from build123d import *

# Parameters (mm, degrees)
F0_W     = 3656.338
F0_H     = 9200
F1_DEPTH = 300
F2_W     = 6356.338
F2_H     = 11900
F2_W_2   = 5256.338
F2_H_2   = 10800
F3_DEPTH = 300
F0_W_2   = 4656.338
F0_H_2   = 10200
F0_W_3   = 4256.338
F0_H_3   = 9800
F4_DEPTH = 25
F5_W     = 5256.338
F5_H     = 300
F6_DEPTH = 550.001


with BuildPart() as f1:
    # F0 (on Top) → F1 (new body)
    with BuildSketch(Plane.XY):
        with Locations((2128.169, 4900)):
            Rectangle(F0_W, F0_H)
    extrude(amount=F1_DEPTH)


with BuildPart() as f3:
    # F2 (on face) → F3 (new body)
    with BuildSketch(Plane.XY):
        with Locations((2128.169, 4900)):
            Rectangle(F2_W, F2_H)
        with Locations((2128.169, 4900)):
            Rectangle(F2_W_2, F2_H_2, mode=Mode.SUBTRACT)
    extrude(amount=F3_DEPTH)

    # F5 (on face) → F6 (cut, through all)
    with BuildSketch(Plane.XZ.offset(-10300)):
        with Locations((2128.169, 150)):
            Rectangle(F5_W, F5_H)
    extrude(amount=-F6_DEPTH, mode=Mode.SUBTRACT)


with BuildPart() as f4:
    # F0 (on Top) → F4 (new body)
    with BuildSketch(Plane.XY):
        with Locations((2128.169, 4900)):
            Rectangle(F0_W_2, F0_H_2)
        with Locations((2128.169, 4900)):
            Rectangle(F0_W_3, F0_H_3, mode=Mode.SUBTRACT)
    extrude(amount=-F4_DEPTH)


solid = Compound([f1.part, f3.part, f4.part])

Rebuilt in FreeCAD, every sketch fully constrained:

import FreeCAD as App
import Part
import Sketcher

V = App.Vector

doc = App.newDocument("Part")
body = doc.addObject("PartDesign::Body", "Body")

# Sketch on XY plane
sketch1 = body.newObject("Sketcher::SketchObject", "Sketch")
sketch1.AttachmentSupport = (doc.getObject("XY_Plane"), [""])
sketch1.MapMode = "FlatFace"
sketch1.addGeometry([
    Part.LineSegment(V(300, 9500, 0), V(300, 300, 0)),
    Part.LineSegment(V(300, 300, 0), V(3956, 300, 0)),
    Part.LineSegment(V(3956, 300, 0), V(3956, 9500, 0)),
    Part.LineSegment(V(3956, 9500, 0), V(300, 9500, 0)),
], False)
sketch1.addConstraint([
    Sketcher.Constraint("Coincident", 0, 2, 1, 1),
    Sketcher.Constraint("Coincident", 1, 2, 2, 1),
    Sketcher.Constraint("Coincident", 2, 2, 3, 1),
    Sketcher.Constraint("Coincident", 3, 2, 0, 1),
    Sketcher.Constraint("Vertical", 0),
    Sketcher.Constraint("Horizontal", 1),
    Sketcher.Constraint("Vertical", 2),
    Sketcher.Constraint("Horizontal", 3),
    Sketcher.Constraint("DistanceY", 0, 2, 0, 1, 9200.0),
    Sketcher.Constraint("DistanceX", -1, 1, 0, 2, 300.0),
    Sketcher.Constraint("DistanceY", -1, 1, 0, 2, 300.0),
    Sketcher.Constraint("DistanceX", 1, 1, 1, 2, 3656.338),
])
pad1 = body.newObject("PartDesign::Pad", "Pad")
pad1.Profile = sketch1
pad1.Length = 300
body2 = doc.addObject("PartDesign::Body", "Body001")

# Sketch on XY plane
sketch2 = body2.newObject("Sketcher::SketchObject", "Sketch001")
sketch2.AttachmentSupport = (doc.getObject("XY_Plane001"), [""])
sketch2.MapMode = "FlatFace"
sketch2.addGeometry([
    Part.LineSegment(V(-1050, 10850, 0), V(-1050, -1050, 0)),  # 0
    Part.LineSegment(V(-1050, -1050, 0), V(5306, -1050, 0)),  # 1
    Part.LineSegment(V(5306, -1050, 0), V(5306, 10850, 0)),  # 2
    Part.LineSegment(V(5306, 10850, 0), V(-1050, 10850, 0)),  # 3
    Part.LineSegment(V(4756, -500, 0), V(-500, -500, 0)),  # 4
    Part.LineSegment(V(-500, -500, 0), V(-500, 10300, 0)),  # 5
    Part.LineSegment(V(-500, 10300, 0), V(4756, 10300, 0)),  # 6
    Part.LineSegment(V(4756, 10300, 0), V(4756, -500, 0)),  # 7
], False)
sketch2.addConstraint([
    Sketcher.Constraint("Coincident", 0, 2, 1, 1),
    Sketcher.Constraint("Coincident", 1, 2, 2, 1),
    Sketcher.Constraint("Coincident", 2, 2, 3, 1),
    Sketcher.Constraint("Coincident", 3, 2, 0, 1),
    Sketcher.Constraint("Coincident", 4, 2, 5, 1),
    Sketcher.Constraint("Coincident", 5, 2, 6, 1),
    Sketcher.Constraint("Coincident", 6, 2, 7, 1),
    Sketcher.Constraint("Coincident", 7, 2, 4, 1),
    Sketcher.Constraint("Vertical", 0),
    Sketcher.Constraint("Horizontal", 1),
    Sketcher.Constraint("Vertical", 2),
    Sketcher.Constraint("Horizontal", 3),
    Sketcher.Constraint("Horizontal", 4),
    Sketcher.Constraint("Vertical", 5),
    Sketcher.Constraint("Horizontal", 6),
    Sketcher.Constraint("Vertical", 7),
    Sketcher.Constraint("DistanceY", 0, 2, 0, 1, 11900.0),
    Sketcher.Constraint("DistanceY", 5, 1, 5, 2, 10800.0),
    Sketcher.Constraint("DistanceX", 0, 2, -1, 1, 1050.0),
    Sketcher.Constraint("DistanceY", 0, 2, -1, 1, 1050.0),
    Sketcher.Constraint("DistanceX", 4, 2, -1, 1, 500.0),
    Sketcher.Constraint("DistanceY", 4, 2, -1, 1, 500.0),
    Sketcher.Constraint("DistanceX", 6, 2, 2, 2, 550.0),
    Sketcher.Constraint("DistanceX", 1, 1, 1, 2, 6356.338),
])
pad2 = body2.newObject("PartDesign::Pad", "Pad001")
pad2.Profile = sketch2
pad2.Length = 300

# Sketch on XZ plane
sketch3 = body2.newObject("Sketcher::SketchObject", "Sketch002")
sketch3.AttachmentSupport = (doc.getObject("XZ_Plane001"), [""])
sketch3.MapMode = "FlatFace"
sketch3.AttachmentOffset = App.Placement(V(0, 0, -10300), App.Rotation())
sketch3.addGeometry([
    Part.LineSegment(V(-500, 300, 0), V(-500, 0, 0)),
    Part.LineSegment(V(-500, 0, 0), V(4756, 0, 0)),
    Part.LineSegment(V(4756, 0, 0), V(4756, 300, 0)),
    Part.LineSegment(V(4756, 300, 0), V(-500, 300, 0)),
], False)
sketch3.addConstraint([
    Sketcher.Constraint("Coincident", 0, 2, 1, 1),
    Sketcher.Constraint("Coincident", 1, 2, 2, 1),
    Sketcher.Constraint("Coincident", 2, 2, 3, 1),
    Sketcher.Constraint("Coincident", 3, 2, 0, 1),
    Sketcher.Constraint("Vertical", 0),
    Sketcher.Constraint("Horizontal", 1),
    Sketcher.Constraint("Vertical", 2),
    Sketcher.Constraint("Horizontal", 3),
    Sketcher.Constraint("PointOnObject", 0, 2, -1),
    Sketcher.Constraint("DistanceY", 0, 2, 0, 1, 300.0),
    Sketcher.Constraint("DistanceX", 0, 2, -1, 1, 500.0),
    Sketcher.Constraint("DistanceX", 1, 1, 1, 2, 5256.338),
])
pocket1 = body2.newObject("PartDesign::Pocket", "Pocket")
pocket1.Profile = sketch3
pocket1.Type = "ThroughAll"
body3 = doc.addObject("PartDesign::Body", "Body002")

# Sketch on XY plane
sketch4 = body3.newObject("Sketcher::SketchObject", "Sketch003")
sketch4.AttachmentSupport = (doc.getObject("XY_Plane002"), [""])
sketch4.MapMode = "FlatFace"
sketch4.addGeometry([
    Part.LineSegment(V(-200, 10000, 0), V(-200, -200, 0)),  # 0
    Part.LineSegment(V(-200, -200, 0), V(4456, -200, 0)),  # 1
    Part.LineSegment(V(4456, -200, 0), V(4456, 10000, 0)),  # 2
    Part.LineSegment(V(4456, 10000, 0), V(-200, 10000, 0)),  # 3
    Part.LineSegment(V(4256, 0, 0), V(0, 0, 0)),  # 4
    Part.LineSegment(V(0, 0, 0), V(0, 9800, 0)),  # 5
    Part.LineSegment(V(0, 9800, 0), V(4256, 9800, 0)),  # 6
    Part.LineSegment(V(4256, 9800, 0), V(4256, 0, 0)),  # 7
], False)
sketch4.addConstraint([
    Sketcher.Constraint("Coincident", 0, 2, 1, 1),
    Sketcher.Constraint("Coincident", 1, 2, 2, 1),
    Sketcher.Constraint("Coincident", 2, 2, 3, 1),
    Sketcher.Constraint("Coincident", 3, 2, 0, 1),
    Sketcher.Constraint("Coincident", 4, 2, 5, 1),
    Sketcher.Constraint("Coincident", 5, 2, 6, 1),
    Sketcher.Constraint("Coincident", 6, 2, 7, 1),
    Sketcher.Constraint("Coincident", 7, 2, 4, 1),
    Sketcher.Constraint("Vertical", 0),
    Sketcher.Constraint("Horizontal", 1),
    Sketcher.Constraint("Vertical", 2),
    Sketcher.Constraint("Horizontal", 3),
    Sketcher.Constraint("Horizontal", 4),
    Sketcher.Constraint("Vertical", 5),
    Sketcher.Constraint("Horizontal", 6),
    Sketcher.Constraint("Vertical", 7),
    Sketcher.Constraint("Coincident", 4, 2, -1, 1),
    Sketcher.Constraint("DistanceY", 0, 2, 0, 1, 10200.0),
    Sketcher.Constraint("DistanceY", 5, 1, 5, 2, 9800.0),
    Sketcher.Constraint("DistanceX", 0, 2, -1, 1, 200.0),
    Sketcher.Constraint("DistanceY", 0, 2, -1, 1, 200.0),
    Sketcher.Constraint("DistanceX", 6, 2, 2, 2, 200.0),
    Sketcher.Constraint("DistanceX", 1, 1, 1, 2, 4656.338),
])
pad3 = body3.newObject("PartDesign::Pad", "Pad002")
pad3.Profile = sketch4
pad3.Length = 25
pad3.Reversed = True

doc.recompute()
